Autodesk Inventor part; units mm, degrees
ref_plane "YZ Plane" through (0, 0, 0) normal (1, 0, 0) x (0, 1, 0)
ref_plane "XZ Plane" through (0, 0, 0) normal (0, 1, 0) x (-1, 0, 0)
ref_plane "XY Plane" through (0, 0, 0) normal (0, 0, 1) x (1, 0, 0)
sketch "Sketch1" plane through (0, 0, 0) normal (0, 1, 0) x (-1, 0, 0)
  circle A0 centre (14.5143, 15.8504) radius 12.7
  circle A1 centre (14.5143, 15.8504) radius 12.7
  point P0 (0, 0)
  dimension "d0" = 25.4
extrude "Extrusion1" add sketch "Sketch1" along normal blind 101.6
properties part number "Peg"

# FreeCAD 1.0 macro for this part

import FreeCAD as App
import Part
import Sketcher
from FreeCAD import Vector
Q = App.Units.Quantity

doc = App.newDocument("Part")
body = doc.addObject("PartDesign::Body", "Body")

sketch1 = doc.addObject("Sketcher::SketchObject", "Sketch")
body.addObject(sketch1)
sketch1.AttachmentSupport = (doc.XZ_Plane, [""])
sketch1.MapMode = "FlatFace"
sketch1.addGeometry(Part.Circle(Vector(-14.5143, 15.8504, 0), Vector(0, 0, 1), 12.7), False)
sketch1.addConstraint([
    Sketcher.Constraint("Diameter", 0, Q("1 in")),
    Sketcher.Constraint("DistanceX", 0, 3, -1, 1, Q("14.5143 mm")),
    Sketcher.Constraint("DistanceY", -1, 1, 0, 3, Q("15.8504 mm")),
])
pad1 = doc.addObject("PartDesign::Pad", "Pad")
body.addObject(pad1)
pad1.Profile = sketch1
pad1.Length = Q("4 in")
pad1.Reversed = True

doc.recompute()
